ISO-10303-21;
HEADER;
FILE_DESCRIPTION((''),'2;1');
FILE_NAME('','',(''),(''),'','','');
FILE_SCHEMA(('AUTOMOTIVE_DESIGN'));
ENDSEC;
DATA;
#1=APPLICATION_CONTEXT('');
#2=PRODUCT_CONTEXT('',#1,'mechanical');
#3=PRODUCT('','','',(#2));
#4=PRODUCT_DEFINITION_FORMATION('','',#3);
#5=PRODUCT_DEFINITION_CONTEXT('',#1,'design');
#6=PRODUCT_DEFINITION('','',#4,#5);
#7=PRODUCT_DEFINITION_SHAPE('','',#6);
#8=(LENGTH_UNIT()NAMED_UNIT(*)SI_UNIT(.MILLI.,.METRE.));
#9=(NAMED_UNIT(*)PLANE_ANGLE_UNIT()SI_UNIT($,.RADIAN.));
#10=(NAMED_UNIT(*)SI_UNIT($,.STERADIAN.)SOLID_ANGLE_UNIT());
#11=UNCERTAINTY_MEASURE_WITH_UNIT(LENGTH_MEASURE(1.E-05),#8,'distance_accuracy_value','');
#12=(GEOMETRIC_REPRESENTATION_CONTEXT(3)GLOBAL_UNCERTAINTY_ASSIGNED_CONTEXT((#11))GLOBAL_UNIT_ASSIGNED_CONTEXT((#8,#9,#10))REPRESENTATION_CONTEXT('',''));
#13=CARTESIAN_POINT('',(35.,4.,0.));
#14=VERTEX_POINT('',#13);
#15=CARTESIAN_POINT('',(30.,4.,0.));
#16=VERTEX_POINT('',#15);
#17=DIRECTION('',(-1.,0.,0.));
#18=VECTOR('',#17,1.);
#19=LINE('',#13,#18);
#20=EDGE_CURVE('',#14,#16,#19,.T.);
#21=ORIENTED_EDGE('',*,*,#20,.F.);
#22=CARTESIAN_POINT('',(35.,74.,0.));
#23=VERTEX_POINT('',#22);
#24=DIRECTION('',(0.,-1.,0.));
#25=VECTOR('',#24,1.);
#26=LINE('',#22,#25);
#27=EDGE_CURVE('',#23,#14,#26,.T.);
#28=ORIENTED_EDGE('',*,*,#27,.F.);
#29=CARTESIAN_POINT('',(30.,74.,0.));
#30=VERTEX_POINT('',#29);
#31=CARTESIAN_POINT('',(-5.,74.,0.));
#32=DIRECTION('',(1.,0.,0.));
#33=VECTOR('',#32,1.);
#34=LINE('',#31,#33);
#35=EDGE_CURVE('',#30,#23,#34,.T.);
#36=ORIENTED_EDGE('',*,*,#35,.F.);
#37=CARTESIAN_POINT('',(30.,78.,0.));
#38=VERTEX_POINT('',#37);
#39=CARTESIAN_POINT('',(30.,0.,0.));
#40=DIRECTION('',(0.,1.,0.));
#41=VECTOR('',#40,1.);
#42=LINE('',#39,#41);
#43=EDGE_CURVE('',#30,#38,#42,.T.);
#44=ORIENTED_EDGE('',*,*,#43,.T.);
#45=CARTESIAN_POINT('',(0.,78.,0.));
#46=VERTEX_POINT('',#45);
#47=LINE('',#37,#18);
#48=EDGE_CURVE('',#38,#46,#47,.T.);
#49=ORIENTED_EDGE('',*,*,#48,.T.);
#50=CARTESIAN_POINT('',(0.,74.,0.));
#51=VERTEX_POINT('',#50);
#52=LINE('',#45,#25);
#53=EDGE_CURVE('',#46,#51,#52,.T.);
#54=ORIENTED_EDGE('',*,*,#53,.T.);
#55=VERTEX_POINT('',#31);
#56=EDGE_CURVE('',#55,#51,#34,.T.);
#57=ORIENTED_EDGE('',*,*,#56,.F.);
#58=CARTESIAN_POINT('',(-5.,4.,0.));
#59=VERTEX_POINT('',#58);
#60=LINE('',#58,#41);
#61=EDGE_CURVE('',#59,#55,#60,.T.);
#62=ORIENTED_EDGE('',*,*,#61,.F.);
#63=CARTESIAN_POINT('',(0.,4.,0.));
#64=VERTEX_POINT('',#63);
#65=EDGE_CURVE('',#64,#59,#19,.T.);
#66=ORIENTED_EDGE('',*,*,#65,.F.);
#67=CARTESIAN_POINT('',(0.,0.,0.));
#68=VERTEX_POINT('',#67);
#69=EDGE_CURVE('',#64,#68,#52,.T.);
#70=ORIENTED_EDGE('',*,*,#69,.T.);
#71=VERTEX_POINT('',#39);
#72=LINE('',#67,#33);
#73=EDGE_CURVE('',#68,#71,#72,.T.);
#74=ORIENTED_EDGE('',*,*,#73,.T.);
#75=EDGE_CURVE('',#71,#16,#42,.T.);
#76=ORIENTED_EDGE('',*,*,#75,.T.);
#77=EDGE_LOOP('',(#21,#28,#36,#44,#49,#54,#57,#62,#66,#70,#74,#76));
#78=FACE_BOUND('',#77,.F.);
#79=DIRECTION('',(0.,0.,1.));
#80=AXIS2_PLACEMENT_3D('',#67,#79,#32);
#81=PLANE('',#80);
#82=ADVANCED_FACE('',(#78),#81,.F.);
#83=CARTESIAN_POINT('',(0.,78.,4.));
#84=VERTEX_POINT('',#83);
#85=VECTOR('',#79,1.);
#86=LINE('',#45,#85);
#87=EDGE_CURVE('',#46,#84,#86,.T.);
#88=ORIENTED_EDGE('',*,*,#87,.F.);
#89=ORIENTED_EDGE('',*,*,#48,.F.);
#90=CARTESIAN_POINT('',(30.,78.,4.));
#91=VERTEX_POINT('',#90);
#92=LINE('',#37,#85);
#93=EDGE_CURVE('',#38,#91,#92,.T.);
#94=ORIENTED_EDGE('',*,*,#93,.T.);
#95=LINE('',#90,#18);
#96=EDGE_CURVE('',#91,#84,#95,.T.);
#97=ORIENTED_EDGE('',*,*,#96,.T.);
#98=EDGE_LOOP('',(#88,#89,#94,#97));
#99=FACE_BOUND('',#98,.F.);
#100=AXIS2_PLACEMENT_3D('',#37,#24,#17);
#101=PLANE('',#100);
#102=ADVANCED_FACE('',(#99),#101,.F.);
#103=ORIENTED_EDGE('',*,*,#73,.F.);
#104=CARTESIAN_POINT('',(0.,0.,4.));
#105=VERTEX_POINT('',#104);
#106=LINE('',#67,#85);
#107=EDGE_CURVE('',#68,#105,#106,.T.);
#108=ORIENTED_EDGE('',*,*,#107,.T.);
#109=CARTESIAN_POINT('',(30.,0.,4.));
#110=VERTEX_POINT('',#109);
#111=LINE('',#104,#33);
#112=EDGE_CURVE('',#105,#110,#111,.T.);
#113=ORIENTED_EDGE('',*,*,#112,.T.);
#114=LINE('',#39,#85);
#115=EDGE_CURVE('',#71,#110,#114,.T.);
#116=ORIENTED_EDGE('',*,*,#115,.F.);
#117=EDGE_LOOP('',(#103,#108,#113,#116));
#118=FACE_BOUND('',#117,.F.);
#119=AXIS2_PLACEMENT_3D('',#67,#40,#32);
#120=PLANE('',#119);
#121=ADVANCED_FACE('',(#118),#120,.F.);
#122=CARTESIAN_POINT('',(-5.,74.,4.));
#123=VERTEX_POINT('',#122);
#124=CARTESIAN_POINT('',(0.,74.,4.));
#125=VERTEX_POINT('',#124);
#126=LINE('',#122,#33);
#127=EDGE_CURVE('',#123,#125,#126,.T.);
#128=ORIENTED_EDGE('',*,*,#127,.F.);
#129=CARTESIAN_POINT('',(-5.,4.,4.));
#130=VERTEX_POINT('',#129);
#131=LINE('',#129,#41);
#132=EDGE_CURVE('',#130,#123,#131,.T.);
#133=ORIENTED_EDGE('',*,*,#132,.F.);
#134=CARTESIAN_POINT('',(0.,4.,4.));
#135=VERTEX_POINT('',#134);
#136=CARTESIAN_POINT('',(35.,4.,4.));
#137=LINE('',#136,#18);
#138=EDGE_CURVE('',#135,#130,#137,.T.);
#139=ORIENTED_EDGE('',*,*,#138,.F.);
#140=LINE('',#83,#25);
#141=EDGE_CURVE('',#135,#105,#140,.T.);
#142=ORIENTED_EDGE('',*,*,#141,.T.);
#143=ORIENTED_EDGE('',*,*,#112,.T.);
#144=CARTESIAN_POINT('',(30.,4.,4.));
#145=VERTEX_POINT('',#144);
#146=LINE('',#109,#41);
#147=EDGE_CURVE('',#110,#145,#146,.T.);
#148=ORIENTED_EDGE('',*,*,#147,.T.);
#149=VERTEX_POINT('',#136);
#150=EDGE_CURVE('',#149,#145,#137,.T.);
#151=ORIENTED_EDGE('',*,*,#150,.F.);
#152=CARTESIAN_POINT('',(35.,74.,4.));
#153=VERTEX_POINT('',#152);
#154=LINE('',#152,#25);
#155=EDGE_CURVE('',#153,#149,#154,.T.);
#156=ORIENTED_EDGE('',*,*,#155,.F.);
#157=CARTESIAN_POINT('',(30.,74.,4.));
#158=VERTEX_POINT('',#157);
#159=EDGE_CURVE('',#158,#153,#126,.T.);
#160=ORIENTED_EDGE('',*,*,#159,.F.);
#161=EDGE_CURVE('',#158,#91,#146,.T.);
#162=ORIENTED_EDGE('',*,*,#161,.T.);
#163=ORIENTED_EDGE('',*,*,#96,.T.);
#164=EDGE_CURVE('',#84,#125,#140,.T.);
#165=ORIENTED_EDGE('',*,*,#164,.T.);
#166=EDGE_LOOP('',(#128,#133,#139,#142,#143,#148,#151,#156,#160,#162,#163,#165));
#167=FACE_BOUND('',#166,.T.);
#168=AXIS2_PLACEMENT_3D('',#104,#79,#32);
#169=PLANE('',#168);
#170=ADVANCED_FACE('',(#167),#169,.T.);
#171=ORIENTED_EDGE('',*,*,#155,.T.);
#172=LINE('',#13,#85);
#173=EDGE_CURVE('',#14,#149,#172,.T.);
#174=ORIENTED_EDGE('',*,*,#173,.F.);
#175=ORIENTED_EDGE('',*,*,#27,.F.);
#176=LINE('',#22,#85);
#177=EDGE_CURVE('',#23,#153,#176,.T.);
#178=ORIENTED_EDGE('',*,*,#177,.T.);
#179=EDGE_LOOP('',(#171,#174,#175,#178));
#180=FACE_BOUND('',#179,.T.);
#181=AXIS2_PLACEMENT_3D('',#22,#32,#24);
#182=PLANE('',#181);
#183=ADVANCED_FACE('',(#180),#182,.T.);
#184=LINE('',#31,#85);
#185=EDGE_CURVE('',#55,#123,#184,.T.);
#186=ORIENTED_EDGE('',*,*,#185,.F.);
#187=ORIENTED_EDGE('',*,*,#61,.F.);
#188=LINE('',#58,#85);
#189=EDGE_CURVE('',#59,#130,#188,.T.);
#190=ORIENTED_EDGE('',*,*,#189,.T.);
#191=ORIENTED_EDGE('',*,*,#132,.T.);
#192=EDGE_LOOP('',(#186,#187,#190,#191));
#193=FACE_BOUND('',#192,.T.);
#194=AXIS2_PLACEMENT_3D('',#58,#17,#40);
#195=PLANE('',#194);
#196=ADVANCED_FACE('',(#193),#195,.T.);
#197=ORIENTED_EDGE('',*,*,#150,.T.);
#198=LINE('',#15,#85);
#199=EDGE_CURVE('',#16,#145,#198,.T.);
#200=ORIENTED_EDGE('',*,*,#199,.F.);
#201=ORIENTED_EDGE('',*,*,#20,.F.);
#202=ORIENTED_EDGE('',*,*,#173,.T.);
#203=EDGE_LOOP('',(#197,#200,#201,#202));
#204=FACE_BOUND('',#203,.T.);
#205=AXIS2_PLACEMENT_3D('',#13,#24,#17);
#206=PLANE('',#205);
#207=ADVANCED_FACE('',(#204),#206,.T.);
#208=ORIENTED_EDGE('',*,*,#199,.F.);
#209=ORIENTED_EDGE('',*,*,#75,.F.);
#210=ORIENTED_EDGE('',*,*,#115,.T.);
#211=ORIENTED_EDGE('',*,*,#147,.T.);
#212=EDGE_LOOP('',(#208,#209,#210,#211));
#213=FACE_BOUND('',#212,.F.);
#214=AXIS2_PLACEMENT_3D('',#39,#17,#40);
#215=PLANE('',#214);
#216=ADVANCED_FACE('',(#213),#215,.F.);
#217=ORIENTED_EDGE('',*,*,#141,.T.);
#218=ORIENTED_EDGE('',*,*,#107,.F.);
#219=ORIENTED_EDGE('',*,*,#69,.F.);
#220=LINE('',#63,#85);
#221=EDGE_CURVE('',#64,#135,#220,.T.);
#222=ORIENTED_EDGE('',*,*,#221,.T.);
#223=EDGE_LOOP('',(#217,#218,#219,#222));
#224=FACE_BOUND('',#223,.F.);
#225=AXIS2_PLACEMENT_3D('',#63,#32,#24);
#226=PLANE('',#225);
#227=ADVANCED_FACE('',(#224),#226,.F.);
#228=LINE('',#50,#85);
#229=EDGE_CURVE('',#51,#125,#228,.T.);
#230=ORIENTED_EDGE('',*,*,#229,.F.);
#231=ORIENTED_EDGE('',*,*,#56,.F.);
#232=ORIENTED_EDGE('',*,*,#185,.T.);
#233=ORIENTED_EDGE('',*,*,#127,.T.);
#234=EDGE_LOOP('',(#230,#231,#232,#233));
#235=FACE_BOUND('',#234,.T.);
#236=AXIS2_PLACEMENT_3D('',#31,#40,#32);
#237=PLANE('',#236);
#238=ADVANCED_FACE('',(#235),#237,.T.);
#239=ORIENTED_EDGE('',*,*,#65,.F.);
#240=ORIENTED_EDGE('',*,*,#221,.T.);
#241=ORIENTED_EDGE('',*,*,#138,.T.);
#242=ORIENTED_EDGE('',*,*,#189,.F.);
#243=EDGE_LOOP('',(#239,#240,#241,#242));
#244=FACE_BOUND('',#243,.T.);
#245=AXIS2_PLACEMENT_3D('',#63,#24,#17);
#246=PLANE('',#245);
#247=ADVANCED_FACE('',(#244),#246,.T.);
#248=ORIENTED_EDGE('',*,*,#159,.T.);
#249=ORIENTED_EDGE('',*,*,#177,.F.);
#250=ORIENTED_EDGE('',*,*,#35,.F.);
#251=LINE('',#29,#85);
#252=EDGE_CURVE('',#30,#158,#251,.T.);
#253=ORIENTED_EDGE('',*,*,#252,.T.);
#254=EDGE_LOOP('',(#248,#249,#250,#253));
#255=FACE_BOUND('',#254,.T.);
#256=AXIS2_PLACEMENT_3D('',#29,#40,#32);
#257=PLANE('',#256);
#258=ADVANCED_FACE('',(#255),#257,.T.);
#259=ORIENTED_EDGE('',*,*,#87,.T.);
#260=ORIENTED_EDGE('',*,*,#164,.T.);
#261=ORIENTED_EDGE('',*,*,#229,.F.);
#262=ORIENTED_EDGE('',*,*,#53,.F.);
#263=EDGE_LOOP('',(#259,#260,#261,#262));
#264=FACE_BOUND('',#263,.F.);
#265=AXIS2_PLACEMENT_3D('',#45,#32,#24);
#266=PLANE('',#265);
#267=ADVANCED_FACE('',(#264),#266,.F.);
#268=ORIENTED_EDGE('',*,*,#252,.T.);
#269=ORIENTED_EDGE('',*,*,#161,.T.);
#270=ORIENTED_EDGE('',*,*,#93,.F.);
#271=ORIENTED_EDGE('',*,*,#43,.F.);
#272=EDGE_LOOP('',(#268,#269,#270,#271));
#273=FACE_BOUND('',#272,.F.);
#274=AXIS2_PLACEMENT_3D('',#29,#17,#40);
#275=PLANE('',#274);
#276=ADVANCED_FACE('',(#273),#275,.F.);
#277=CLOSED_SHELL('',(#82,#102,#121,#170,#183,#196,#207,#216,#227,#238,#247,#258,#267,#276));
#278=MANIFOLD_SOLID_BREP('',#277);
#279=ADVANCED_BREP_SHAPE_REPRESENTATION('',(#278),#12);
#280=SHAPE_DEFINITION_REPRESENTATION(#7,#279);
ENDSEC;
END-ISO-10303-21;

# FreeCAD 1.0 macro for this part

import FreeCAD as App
import Part
import Sketcher
from FreeCAD import Vector

doc = App.newDocument("Part")
params = doc.addObject("Spreadsheet::Sheet", "Params")
for row, (alias, value) in enumerate([
    ("sketch1_width", "30 mm"),
    ("sketch1_width2", "5 mm"),
    ("sketch1_height", "4 mm"),
    ("pad1_length", "4 mm"),
], start=1):
    params.set(f"A{row}", alias)
    params.set(f"B{row}", "=" + value)
    params.setAlias(f"B{row}", alias)

body = doc.addObject("PartDesign::Body", "Body")

# Sketch on XY plane
sketch1 = doc.addObject("Sketcher::SketchObject", "Sketch")
body.addObject(sketch1)
sketch1.AttachmentSupport = (doc.XY_Plane, [""])
sketch1.MapMode = "FlatFace"
sketch1.addGeometry([
    Part.LineSegment(Vector(0, 4, 0), Vector(0, 0, 0)),  # 0
    Part.LineSegment(Vector(0, 0, 0), Vector(30, 0, 0)),  # 1
    Part.LineSegment(Vector(30, 0, 0), Vector(30, 4, 0)),  # 2
    Part.LineSegment(Vector(30, 4, 0), Vector(35, 4, 0)),  # 3
    Part.LineSegment(Vector(35, 4, 0), Vector(35, 74, 0)),  # 4
    Part.LineSegment(Vector(35, 74, 0), Vector(30, 74, 0)),  # 5
    Part.LineSegment(Vector(30, 74, 0), Vector(30, 78, 0)),  # 6
    Part.LineSegment(Vector(30, 78, 0), Vector(0, 78, 0)),  # 7
    Part.LineSegment(Vector(0, 78, 0), Vector(0, 74, 0)),  # 8
    Part.LineSegment(Vector(0, 74, 0), Vector(-5, 74, 0)),  # 9
    Part.LineSegment(Vector(-5, 74, 0), Vector(-5, 4, 0)),  # 10
    Part.LineSegment(Vector(-5, 4, 0), Vector(0, 4, 0)),  # 11
], False)
sketch1.addConstraint([
    Sketcher.Constraint("Coincident", 0, 2, 1, 1),
    Sketcher.Constraint("Coincident", 1, 2, 2, 1),
    Sketcher.Constraint("Coincident", 2, 2, 3, 1),
    Sketcher.Constraint("Coincident", 3, 2, 4, 1),
    Sketcher.Constraint("Coincident", 4, 2, 5, 1),
    Sketcher.Constraint("Coincident", 5, 2, 6, 1),
    Sketcher.Constraint("Coincident", 6, 2, 7, 1),
    Sketcher.Constraint("Coincident", 7, 2, 8, 1),
    Sketcher.Constraint("Coincident", 8, 2, 9, 1),
    Sketcher.Constraint("Coincident", 9, 2, 10, 1),
    Sketcher.Constraint("Coincident", 10, 2, 11, 1),
    Sketcher.Constraint("Coincident", 11, 2, 0, 1),
    Sketcher.Constraint("Vertical", 0),
    Sketcher.Constraint("Horizontal", 1),
    Sketcher.Constraint("Vertical", 2),
    Sketcher.Constraint("Horizontal", 3),
    Sketcher.Constraint("Vertical", 4),
    Sketcher.Constraint("Horizontal", 5),
    Sketcher.Constraint("Vertical", 6),
    Sketcher.Constraint("Horizontal", 7),
    Sketcher.Constraint("Vertical", 8),
    Sketcher.Constraint("Horizontal", 9),
    Sketcher.Constraint("Vertical", 10),
    Sketcher.Constraint("Horizontal", 11),
    Sketcher.Constraint("Coincident", 0, 2, -1, 1),
    Sketcher.Constraint("PointOnObject", 7, 2, -2),
    Sketcher.Constraint("Horizontal", 5, 2, 8, 2),
    Sketcher.Constraint("Horizontal", 3, 2, 10, 2),
    Sketcher.Constraint("Vertical", 2, 2, 5, 2),
    Sketcher.Constraint("Equal", 5, 9),
    Sketcher.Constraint("Equal", 2, 6),
    Sketcher.Constraint("DistanceX", 1, 1, 1, 2, 30.0),
    Sketcher.Constraint("DistanceX", 3, 1, 3, 2, 5.0),
    Sketcher.Constraint("DistanceY", 0, 2, 0, 1, 4.0),
    Sketcher.Constraint("DistanceY", -1, 1, 6, 2, 78.0),
])
sketch1.setExpression("Constraints[31]", "Params.sketch1_width")
sketch1.setExpression("Constraints[32]", "Params.sketch1_width2")
sketch1.setExpression("Constraints[33]", "Params.sketch1_height")
pad1 = doc.addObject("PartDesign::Pad", "Pad")
body.addObject(pad1)
pad1.Profile = sketch1
pad1.setExpression("Length", "Params.pad1_length")

doc.recompute()
